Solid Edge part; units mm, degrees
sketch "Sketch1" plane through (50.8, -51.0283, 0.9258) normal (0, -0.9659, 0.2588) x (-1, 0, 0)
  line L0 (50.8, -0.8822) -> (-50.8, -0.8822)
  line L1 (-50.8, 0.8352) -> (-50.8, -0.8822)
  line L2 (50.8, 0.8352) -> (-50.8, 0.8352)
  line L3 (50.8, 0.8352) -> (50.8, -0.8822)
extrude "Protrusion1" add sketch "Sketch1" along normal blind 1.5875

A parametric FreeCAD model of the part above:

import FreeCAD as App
import Part
import Sketcher
from FreeCAD import Vector
Q = App.Units.Quantity


def add_polygon(sketch, points):
    """Adds a closed chain of lines whose ends are joined by coincident constraints."""
    first, n = sketch.GeometryCount, len(points)
    for a, b in zip(points, points[1:] + points[:1]):
        sketch.addGeometry(Part.LineSegment(App.Vector(*a, 0), App.Vector(*b, 0)), False)
    for i in range(n):
        sketch.addConstraint(Sketcher.Constraint("Coincident", first + i, 2, first + (i + 1) % n, 1))

doc = App.newDocument("Part")
body = doc.addObject("PartDesign::Body", "Body")

sketch1 = body.newObject("Sketcher::SketchObject", "Sketch")
sketch1.Placement = App.Placement(Vector(50.8, -51.0283, 0.9258), App.Rotation(Vector(-1, 0, 0), Vector(0, -0.258819045, -0.965925826), Vector(0, -0.965925826, 0.258819045), "ZXY"))
add_polygon(sketch1, [(-50.8, -0.9), (50.8, -0.9), (50.8, 0.8), (-50.8, 0.8)])
sketch1.addConstraint(Sketcher.Constraint("Horizontal", 0))
sketch1.addConstraint(Sketcher.Constraint("Vertical", 1))
sketch1.addConstraint(Sketcher.Constraint("Horizontal", 2))
sketch1.addConstraint(Sketcher.Constraint("Vertical", 3))
sketch1.addConstraint(Sketcher.Constraint("DistanceX", 0, 1, 0, 2, Q("4 in")))
sketch1.addConstraint(Sketcher.Constraint("DistanceX", -1, 1, 0, 2, Q("2 in")))
sketch1.addConstraint(Sketcher.Constraint("DistanceY", 1, 1, 1, 2, 1.7174))
sketch1.addConstraint(Sketcher.Constraint("DistanceY", 0, 2, -1, 1, 0.8822))
pad1 = body.newObject("PartDesign::Pad", "Pad")
pad1.Profile = sketch1
pad1.Length = Q("0.0625 in")

doc.recompute()
